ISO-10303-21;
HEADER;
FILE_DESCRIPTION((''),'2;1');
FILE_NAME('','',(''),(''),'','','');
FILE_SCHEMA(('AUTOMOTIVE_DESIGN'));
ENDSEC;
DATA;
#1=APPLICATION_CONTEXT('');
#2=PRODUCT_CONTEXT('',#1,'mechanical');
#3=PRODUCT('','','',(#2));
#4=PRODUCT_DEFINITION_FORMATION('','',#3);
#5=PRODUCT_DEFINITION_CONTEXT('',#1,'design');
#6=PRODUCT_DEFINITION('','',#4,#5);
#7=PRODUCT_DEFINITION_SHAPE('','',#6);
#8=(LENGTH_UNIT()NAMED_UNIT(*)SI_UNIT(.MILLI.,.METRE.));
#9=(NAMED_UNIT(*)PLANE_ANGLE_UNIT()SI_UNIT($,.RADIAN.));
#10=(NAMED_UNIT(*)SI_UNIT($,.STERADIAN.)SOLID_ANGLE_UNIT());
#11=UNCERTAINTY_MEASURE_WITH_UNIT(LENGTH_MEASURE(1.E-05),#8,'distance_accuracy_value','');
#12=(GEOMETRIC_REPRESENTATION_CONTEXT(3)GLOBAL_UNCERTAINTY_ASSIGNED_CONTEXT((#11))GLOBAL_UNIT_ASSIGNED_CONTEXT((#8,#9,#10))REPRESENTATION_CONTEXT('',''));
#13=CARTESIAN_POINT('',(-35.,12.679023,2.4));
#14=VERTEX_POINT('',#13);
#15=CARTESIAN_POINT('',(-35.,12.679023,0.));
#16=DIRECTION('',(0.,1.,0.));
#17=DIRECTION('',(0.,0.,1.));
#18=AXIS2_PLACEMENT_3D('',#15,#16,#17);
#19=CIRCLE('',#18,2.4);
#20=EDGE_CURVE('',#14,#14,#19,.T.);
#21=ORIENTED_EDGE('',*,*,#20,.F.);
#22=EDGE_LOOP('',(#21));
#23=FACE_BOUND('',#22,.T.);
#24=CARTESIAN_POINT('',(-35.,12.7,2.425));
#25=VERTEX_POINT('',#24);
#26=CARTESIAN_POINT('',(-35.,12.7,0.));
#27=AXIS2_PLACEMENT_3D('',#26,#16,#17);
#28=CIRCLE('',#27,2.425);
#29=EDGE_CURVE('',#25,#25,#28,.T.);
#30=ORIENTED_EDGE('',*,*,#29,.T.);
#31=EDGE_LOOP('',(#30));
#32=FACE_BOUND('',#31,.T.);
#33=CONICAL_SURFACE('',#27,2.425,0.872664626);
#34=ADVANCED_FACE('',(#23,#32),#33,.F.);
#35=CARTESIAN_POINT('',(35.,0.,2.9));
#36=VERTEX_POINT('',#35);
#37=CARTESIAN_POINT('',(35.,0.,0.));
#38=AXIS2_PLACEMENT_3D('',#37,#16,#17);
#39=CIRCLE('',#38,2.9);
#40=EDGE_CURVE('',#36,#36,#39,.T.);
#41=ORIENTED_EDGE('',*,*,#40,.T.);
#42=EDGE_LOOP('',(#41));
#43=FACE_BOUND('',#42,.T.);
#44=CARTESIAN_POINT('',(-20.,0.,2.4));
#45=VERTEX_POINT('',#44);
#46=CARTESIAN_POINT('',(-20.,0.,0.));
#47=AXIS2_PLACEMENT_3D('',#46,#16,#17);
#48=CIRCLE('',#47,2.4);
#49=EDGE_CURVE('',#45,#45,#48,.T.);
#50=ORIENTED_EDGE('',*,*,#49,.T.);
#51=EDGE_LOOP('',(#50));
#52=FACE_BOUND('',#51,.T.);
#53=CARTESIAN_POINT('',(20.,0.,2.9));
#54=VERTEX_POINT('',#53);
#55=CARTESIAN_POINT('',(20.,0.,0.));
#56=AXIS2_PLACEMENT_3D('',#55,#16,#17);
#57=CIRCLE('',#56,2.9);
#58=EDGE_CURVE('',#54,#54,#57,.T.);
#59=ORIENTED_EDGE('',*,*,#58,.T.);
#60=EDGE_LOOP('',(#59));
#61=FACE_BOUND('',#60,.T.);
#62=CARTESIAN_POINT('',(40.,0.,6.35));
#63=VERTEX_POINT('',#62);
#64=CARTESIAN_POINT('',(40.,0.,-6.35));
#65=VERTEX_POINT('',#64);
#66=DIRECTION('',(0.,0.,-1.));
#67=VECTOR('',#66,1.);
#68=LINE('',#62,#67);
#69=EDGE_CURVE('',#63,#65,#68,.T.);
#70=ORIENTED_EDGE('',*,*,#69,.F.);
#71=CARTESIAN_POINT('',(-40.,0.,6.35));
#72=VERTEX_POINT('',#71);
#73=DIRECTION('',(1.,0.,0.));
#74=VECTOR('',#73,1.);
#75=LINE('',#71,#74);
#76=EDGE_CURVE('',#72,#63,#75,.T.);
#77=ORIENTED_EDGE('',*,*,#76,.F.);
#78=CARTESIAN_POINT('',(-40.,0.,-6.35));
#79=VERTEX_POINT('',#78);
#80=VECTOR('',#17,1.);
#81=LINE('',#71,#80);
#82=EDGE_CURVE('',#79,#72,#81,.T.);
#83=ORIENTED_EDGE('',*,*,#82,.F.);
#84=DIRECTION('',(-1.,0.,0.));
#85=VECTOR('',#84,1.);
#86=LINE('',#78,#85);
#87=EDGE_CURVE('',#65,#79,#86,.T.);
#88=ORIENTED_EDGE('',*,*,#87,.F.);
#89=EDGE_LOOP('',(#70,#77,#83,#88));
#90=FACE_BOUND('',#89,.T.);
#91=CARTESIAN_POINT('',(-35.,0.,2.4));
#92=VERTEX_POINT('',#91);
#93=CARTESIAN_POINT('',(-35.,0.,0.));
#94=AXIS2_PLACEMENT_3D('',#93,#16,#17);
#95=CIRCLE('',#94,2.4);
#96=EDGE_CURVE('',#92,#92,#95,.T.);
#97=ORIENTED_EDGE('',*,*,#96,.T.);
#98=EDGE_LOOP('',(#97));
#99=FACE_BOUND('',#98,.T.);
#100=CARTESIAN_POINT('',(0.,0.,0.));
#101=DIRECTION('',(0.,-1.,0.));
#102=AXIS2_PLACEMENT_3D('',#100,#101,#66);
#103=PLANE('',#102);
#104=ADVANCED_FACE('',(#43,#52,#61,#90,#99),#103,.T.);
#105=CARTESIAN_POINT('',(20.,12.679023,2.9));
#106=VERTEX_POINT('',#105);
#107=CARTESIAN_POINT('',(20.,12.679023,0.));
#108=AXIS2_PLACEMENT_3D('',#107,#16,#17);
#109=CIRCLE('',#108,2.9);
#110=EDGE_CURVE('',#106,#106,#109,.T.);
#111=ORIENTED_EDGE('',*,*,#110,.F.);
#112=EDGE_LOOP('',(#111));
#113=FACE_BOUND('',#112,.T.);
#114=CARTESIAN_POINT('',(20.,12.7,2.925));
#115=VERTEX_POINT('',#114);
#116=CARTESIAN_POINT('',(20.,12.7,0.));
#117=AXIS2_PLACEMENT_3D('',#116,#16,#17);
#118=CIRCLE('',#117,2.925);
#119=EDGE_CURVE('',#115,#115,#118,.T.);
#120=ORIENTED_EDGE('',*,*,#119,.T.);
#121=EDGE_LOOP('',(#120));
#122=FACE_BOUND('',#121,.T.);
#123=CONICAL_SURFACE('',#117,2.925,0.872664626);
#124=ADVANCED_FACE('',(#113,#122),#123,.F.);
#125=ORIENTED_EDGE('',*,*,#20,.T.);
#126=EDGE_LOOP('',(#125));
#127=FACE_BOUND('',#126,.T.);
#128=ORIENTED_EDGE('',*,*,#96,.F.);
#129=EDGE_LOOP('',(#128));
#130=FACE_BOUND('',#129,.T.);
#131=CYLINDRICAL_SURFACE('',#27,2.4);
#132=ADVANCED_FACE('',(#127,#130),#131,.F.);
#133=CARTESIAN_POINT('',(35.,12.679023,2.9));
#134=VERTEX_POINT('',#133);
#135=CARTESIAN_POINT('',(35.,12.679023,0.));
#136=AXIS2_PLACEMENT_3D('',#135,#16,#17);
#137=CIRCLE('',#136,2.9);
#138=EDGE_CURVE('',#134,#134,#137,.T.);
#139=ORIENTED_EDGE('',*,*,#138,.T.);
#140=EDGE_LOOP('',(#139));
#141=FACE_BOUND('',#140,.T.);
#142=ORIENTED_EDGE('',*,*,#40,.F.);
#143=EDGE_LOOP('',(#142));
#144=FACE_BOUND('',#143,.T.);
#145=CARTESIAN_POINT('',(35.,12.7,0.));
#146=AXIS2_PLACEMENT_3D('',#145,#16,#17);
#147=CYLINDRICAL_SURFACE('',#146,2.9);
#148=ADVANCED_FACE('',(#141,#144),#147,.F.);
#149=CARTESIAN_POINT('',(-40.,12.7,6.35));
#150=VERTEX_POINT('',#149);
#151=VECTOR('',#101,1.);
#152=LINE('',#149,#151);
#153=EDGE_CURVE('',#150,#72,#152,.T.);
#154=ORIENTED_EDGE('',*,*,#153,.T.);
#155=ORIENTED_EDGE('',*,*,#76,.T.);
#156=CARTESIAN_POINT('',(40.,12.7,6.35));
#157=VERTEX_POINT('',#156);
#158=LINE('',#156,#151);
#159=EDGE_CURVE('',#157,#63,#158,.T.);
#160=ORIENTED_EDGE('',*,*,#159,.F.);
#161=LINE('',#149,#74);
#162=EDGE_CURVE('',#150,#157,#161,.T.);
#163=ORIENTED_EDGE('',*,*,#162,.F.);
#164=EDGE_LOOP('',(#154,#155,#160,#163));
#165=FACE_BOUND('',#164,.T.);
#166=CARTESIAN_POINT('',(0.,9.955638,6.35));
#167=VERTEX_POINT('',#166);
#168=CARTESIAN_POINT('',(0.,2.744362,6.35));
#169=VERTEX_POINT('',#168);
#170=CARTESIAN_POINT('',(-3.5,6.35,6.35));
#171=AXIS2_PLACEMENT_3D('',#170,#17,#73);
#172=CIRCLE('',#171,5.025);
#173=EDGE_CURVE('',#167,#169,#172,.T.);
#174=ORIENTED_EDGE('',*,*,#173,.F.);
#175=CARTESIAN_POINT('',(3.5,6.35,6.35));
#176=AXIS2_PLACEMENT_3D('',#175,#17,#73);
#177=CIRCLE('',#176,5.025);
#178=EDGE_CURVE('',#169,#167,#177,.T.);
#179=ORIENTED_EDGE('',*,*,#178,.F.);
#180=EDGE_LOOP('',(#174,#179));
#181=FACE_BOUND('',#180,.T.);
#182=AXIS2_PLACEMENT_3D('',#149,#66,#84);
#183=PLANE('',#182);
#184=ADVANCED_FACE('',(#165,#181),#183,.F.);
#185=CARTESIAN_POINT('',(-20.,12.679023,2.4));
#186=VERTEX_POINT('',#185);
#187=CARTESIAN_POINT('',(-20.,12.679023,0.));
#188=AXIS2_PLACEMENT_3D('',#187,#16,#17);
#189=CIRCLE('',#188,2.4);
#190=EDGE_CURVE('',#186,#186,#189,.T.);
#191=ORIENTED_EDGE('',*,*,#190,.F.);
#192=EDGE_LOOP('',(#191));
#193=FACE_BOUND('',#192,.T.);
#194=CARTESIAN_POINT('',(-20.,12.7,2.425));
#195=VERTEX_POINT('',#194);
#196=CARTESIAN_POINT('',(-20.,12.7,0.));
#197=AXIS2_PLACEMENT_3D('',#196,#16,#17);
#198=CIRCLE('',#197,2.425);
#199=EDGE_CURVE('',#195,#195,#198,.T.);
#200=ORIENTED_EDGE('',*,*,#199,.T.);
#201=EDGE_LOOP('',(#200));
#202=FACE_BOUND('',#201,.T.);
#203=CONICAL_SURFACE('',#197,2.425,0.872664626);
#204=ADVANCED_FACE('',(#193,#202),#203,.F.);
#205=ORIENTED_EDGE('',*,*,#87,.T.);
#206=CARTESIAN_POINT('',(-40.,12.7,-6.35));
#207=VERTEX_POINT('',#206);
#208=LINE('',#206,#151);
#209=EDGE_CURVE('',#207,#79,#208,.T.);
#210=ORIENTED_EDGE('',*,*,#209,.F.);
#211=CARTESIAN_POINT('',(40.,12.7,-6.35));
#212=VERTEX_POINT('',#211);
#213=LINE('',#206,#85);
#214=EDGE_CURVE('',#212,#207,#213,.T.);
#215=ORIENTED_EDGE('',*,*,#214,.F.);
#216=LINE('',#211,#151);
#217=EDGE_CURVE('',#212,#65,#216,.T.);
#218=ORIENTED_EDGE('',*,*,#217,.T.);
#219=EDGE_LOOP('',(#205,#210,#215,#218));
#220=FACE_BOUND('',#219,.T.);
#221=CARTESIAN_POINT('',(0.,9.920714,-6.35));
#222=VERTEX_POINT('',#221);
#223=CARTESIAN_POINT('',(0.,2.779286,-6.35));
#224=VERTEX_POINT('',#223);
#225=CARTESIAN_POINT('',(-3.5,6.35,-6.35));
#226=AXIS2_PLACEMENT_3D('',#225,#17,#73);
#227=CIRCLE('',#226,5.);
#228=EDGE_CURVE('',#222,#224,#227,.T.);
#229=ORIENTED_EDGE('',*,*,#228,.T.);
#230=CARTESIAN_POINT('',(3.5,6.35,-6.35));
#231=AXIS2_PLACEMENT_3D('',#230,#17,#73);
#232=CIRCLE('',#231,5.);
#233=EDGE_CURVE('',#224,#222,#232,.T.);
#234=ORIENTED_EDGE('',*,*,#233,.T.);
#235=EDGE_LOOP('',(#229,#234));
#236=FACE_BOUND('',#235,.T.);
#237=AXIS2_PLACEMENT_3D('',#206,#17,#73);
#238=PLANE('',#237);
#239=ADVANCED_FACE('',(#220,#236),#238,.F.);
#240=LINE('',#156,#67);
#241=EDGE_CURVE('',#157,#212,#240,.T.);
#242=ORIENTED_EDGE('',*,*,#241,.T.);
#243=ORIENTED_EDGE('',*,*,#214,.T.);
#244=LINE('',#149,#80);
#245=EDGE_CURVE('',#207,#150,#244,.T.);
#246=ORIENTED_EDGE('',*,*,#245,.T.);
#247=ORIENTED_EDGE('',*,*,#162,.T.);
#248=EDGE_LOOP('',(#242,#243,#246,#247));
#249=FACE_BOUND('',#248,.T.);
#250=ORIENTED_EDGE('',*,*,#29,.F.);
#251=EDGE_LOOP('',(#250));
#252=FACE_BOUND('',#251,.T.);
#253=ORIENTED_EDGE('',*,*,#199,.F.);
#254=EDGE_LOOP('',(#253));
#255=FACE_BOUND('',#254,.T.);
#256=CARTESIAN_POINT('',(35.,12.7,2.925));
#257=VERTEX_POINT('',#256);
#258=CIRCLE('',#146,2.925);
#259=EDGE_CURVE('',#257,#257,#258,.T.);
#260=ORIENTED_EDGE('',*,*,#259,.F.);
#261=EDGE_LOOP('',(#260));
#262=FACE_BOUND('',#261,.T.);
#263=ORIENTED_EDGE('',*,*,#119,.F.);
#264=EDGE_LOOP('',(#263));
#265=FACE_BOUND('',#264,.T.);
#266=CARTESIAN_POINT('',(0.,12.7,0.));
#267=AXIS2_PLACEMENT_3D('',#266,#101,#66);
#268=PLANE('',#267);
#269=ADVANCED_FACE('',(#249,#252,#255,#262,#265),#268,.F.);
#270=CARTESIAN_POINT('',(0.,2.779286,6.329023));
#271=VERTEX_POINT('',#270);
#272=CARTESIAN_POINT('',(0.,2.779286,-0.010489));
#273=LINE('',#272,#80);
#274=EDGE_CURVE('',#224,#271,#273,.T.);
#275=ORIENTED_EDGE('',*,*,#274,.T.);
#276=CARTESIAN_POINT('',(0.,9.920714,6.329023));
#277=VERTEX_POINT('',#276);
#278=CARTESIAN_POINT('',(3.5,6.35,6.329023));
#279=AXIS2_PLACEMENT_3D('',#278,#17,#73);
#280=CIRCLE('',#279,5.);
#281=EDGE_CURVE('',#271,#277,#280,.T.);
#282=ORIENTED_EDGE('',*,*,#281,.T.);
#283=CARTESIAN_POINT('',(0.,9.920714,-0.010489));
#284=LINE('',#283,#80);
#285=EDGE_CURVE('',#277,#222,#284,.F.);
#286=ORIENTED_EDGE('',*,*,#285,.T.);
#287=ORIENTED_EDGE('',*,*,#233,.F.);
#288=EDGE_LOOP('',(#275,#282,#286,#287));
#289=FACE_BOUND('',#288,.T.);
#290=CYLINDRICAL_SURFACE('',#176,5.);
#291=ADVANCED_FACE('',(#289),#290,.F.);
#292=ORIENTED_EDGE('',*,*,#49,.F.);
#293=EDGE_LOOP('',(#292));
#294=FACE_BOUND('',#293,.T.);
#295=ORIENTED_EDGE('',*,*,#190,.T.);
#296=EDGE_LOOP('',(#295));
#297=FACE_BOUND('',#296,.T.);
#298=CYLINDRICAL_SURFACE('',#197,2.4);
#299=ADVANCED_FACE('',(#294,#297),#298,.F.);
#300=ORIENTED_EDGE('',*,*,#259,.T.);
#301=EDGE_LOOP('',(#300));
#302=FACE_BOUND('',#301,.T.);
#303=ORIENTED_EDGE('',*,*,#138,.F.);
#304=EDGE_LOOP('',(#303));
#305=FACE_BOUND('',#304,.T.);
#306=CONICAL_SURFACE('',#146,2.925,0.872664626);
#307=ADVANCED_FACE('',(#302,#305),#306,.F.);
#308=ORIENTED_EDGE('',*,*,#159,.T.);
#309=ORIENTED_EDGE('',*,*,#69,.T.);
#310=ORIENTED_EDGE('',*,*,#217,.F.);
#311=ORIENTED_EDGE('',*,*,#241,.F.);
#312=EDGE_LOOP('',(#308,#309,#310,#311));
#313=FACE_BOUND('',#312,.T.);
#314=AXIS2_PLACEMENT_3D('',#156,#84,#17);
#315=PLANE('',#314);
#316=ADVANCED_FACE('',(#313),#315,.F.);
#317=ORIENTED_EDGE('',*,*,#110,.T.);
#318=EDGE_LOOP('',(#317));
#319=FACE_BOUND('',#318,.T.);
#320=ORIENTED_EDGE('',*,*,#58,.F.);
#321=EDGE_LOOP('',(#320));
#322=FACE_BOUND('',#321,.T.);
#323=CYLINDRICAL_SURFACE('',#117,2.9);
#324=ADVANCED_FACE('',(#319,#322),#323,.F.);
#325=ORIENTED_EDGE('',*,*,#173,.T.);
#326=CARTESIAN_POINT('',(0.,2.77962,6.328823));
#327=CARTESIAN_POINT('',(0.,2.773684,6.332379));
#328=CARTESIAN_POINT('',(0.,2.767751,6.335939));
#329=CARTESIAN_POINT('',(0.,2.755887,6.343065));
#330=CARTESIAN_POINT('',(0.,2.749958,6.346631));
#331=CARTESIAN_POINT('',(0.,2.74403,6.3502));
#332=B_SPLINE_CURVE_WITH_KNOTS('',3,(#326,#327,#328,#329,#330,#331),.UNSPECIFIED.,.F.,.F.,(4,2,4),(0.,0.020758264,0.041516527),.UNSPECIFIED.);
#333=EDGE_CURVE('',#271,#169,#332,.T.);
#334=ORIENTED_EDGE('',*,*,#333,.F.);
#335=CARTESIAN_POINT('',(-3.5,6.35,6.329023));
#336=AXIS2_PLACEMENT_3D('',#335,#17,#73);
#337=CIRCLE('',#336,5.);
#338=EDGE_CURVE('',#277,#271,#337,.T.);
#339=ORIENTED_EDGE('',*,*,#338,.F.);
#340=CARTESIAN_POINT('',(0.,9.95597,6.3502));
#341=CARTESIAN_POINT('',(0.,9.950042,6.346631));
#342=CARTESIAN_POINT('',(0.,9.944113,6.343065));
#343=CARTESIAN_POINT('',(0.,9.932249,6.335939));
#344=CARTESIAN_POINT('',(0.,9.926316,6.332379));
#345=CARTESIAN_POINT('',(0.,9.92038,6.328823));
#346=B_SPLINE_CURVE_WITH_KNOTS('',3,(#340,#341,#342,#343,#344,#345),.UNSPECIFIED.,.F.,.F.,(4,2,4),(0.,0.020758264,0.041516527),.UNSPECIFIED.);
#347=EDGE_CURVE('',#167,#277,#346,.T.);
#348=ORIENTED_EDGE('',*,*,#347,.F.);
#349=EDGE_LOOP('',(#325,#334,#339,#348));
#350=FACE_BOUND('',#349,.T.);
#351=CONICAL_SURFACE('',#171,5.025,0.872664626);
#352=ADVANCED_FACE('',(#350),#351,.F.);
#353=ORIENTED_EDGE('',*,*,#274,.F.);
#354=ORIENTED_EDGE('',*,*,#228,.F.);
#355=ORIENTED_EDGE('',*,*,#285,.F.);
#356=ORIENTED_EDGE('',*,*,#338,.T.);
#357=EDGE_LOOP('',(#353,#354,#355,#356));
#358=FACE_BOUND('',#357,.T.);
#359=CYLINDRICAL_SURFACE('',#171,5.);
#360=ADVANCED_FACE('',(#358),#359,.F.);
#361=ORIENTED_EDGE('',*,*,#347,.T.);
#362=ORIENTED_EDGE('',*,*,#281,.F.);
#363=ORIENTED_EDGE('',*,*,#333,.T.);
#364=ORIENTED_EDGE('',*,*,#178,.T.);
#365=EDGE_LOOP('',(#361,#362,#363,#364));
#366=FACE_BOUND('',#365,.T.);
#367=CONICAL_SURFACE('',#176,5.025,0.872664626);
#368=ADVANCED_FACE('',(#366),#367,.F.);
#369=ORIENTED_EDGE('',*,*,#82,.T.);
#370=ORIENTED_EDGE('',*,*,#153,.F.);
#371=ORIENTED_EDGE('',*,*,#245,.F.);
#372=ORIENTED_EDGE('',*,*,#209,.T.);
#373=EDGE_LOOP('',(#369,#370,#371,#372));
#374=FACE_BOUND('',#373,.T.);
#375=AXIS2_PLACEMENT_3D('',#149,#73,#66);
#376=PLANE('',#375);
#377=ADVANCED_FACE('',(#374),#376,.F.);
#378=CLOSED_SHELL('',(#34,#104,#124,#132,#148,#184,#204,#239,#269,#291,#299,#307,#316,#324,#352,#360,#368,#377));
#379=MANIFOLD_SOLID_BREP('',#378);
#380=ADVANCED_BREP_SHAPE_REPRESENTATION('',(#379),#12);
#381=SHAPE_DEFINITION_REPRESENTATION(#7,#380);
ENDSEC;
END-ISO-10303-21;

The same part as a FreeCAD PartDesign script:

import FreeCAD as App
import Part
import Sketcher

V = App.Vector

doc = App.newDocument("Part")
body = doc.addObject("PartDesign::Body", "Body")

sketch1 = body.newObject("Sketcher::SketchObject", "Sketch")
sketch1.AttachmentSupport = (doc.getObject("XZ_Plane"), [""])
sketch1.MapMode = "FlatFace"
sketch1.addGeometry([
    Part.LineSegment(V(-40, -6, 0), V(-40, 6, 0)),
    Part.LineSegment(V(-40, 6, 0), V(40, 6, 0)),
    Part.LineSegment(V(40, 6, 0), V(40, -6, 0)),
    Part.LineSegment(V(40, -6, 0), V(-40, -6, 0)),
], False)
sketch1.addConstraint([
    Sketcher.Constraint("Coincident", 0, 2, 1, 1),
    Sketcher.Constraint("Coincident", 1, 2, 2, 1),
    Sketcher.Constraint("Coincident", 2, 2, 3, 1),
    Sketcher.Constraint("Coincident", 3, 2, 0, 1),
    Sketcher.Constraint("Vertical", 0),
    Sketcher.Constraint("Horizontal", 1),
    Sketcher.Constraint("Vertical", 2),
    Sketcher.Constraint("Horizontal", 3),
    Sketcher.Constraint("Symmetric", 0, 2, 2, 2, -1, 1),
    Sketcher.Constraint("DistanceX", 1, 1, 1, 2, 80.0),
    Sketcher.Constraint("DistanceY", 0, 1, 0, 2, 12.7),
])
pad1 = body.newObject("PartDesign::Pad", "Pad")
pad1.Profile = sketch1
pad1.Length = 12.7
pad1.Reversed = True

sketch2 = body.newObject("Sketcher::SketchObject", "Sketch001")
sketch2.AttachmentSupport = (doc.getObject("XZ_Plane"), [""])
sketch2.MapMode = "FlatFace"
sketch2.AttachmentOffset = App.Placement(V(0, 0, -12.7), App.Rotation())
sketch2.addGeometry([
    Part.Circle(V(-35, 0, 0), V(0, 0, 1), 2.4),
    Part.Circle(V(-20, 0, 0), V(0, 0, 1), 2.4),
], False)
sketch2.addConstraint([
    Sketcher.Constraint("Equal", 0, 1),
    Sketcher.Constraint("PointOnObject", 0, 3, -1),
    Sketcher.Constraint("PointOnObject", 1, 3, -1),
    Sketcher.Constraint("Diameter", 0, 4.8),
    Sketcher.Constraint("DistanceX", 0, 3, -1, 1, 35.0),
    Sketcher.Constraint("DistanceX", 1, 3, -1, 1, 20.0),
])
doc.recompute()
hole = body.newObject("PartDesign::Hole", "Hole")
hole.Profile = sketch2
hole.ThreadType = "None"
hole.Diameter = 4.8
hole.DepthType = "ThroughAll"
hole.HoleCutType = "Countersink"
hole.HoleCutDiameter = 4.85
hole.HoleCutCountersinkAngle = 100
hole.Reversed = True

sketch3 = body.newObject("Sketcher::SketchObject", "Sketch002")
sketch3.AttachmentSupport = (doc.getObject("XY_Plane"), [""])
sketch3.MapMode = "FlatFace"
sketch3.AttachmentOffset = App.Placement(V(0, 0, 6.35), App.Rotation())
sketch3.addGeometry([
    Part.Circle(V(-4, 6, 0), V(0, 0, 1), 5),
    Part.Circle(V(4, 6, 0), V(0, 0, 1), 5),
], False)
sketch3.addConstraint([
    Sketcher.Constraint("Equal", 0, 1),
    Sketcher.Constraint("Symmetric", 0, 3, 1, 3, -2),
    Sketcher.Constraint("Diameter", 0, 10.0),
    Sketcher.Constraint("DistanceX", 0, 3, 1, 3, 7.0),
    Sketcher.Constraint("DistanceY", -1, 1, 0, 3, 6.35),
])
doc.recompute()
hole2 = body.newObject("PartDesign::Hole", "Hole001")
hole2.Profile = sketch3
hole2.ThreadType = "None"
hole2.Diameter = 10
hole2.DepthType = "ThroughAll"
hole2.HoleCutType = "Countersink"
hole2.HoleCutDiameter = 10.05
hole2.HoleCutCountersinkAngle = 100

sketch4 = body.newObject("Sketcher::SketchObject", "Sketch003")
sketch4.AttachmentSupport = (doc.getObject("XZ_Plane"), [""])
sketch4.MapMode = "FlatFace"
sketch4.AttachmentOffset = App.Placement(V(0, 0, -12.7), App.Rotation())
sketch4.addGeometry([
    Part.Circle(V(35, 0, 0), V(0, 0, 1), 2.9),
    Part.Circle(V(20, 0, 0), V(0, 0, 1), 2.9),
], False)
sketch4.addConstraint([
    Sketcher.Constraint("Equal", 0, 1),
    Sketcher.Constraint("PointOnObject", 0, 3, -1),
    Sketcher.Constraint("PointOnObject", 1, 3, -1),
    Sketcher.Constraint("Diameter", 0, 5.8),
    Sketcher.Constraint("DistanceX", -1, 1, 0, 3, 35.0),
    Sketcher.Constraint("DistanceX", -1, 1, 1, 3, 20.0),
])
doc.recompute()
hole3 = body.newObject("PartDesign::Hole", "Hole002")
hole3.Profile = sketch4
hole3.ThreadType = "None"
hole3.Diameter = 5.8
hole3.DepthType = "ThroughAll"
hole3.HoleCutType = "Countersink"
hole3.HoleCutDiameter = 5.85
hole3.HoleCutCountersinkAngle = 100
hole3.Reversed = True

doc.recompute()
